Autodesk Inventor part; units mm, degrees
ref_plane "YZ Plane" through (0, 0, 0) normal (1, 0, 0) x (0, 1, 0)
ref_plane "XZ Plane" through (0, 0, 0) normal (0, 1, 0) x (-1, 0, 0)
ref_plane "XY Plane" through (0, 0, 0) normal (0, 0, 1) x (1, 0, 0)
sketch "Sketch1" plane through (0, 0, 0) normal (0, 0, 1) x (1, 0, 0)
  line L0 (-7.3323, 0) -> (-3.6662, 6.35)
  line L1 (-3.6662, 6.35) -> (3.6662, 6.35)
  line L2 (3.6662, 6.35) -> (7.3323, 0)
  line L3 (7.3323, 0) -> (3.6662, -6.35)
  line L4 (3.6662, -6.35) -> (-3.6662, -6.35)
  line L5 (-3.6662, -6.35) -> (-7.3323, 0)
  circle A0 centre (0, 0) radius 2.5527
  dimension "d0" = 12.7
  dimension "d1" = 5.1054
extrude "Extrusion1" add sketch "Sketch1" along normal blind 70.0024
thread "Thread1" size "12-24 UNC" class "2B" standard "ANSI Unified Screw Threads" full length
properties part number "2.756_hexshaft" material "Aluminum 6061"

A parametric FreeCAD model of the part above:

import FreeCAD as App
import Part
import Sketcher
from FreeCAD import Vector
Q = App.Units.Quantity

doc = App.newDocument("Part")
body = doc.addObject("PartDesign::Body", "Body")

# Sketch on XY plane
sketch1 = body.newObject("Sketcher::SketchObject", "Sketch")
sketch1.AttachmentSupport = (doc.getObject("XY_Plane"), [""])
sketch1.MapMode = "FlatFace"
sketch1.addGeometry([
    Part.LineSegment(Vector(-3.6662, 6.35, 0), Vector(-7.3323, 0, 0)),  # 0
    Part.LineSegment(Vector(-7.3323, 0, 0), Vector(-3.6662, -6.35, 0)),  # 1
    Part.LineSegment(Vector(-3.6662, -6.35, 0), Vector(3.6662, -6.35, 0)),  # 2
    Part.LineSegment(Vector(3.6662, -6.35, 0), Vector(7.3323, 0, 0)),  # 3
    Part.LineSegment(Vector(7.3323, 0, 0), Vector(3.6662, 6.35, 0)),  # 4
    Part.LineSegment(Vector(3.6662, 6.35, 0), Vector(-3.6662, 6.35, 0)),  # 5
    Part.Circle(Vector(0, 0, 0), Vector(0, 0, 1), 2.5527),  # 6
], False)
sketch1.addConstraint([
    Sketcher.Constraint("Coincident", 0, 2, 1, 1),
    Sketcher.Constraint("Coincident", 1, 2, 2, 1),
    Sketcher.Constraint("Coincident", 2, 2, 3, 1),
    Sketcher.Constraint("Coincident", 3, 2, 4, 1),
    Sketcher.Constraint("Coincident", 4, 2, 5, 1),
    Sketcher.Constraint("Coincident", 5, 2, 0, 1),
    Sketcher.Constraint("Horizontal", 2),
    Sketcher.Constraint("Horizontal", 5),
    Sketcher.Constraint("Coincident", 6, 3, -1, 1),
    Sketcher.Constraint("Symmetric", 0, 2, 3, 2, -1, 1),
    Sketcher.Constraint("Symmetric", 1, 2, 4, 2, -1, 1),
    Sketcher.Constraint("PointOnObject", 0, 2, -1),
    Sketcher.Constraint("Parallel", 0, 3),
    Sketcher.Constraint("Vertical", 2, 2, 4, 2),
    Sketcher.Constraint("Diameter", 6, Q("0.201 in")),
    Sketcher.Constraint("DistanceY", 2, 2, 4, 2, Q("0.5 in")),
    Sketcher.Constraint("Angle", 0, Q("-119.9995 deg")),
    Sketcher.Constraint("DistanceX", 0, 2, 2, 2, Q("0.433 in")),
])
pad1 = body.newObject("PartDesign::Pad", "Pad")
pad1.Profile = sketch1
pad1.Length = Q("2.756 in")

doc.recompute()
